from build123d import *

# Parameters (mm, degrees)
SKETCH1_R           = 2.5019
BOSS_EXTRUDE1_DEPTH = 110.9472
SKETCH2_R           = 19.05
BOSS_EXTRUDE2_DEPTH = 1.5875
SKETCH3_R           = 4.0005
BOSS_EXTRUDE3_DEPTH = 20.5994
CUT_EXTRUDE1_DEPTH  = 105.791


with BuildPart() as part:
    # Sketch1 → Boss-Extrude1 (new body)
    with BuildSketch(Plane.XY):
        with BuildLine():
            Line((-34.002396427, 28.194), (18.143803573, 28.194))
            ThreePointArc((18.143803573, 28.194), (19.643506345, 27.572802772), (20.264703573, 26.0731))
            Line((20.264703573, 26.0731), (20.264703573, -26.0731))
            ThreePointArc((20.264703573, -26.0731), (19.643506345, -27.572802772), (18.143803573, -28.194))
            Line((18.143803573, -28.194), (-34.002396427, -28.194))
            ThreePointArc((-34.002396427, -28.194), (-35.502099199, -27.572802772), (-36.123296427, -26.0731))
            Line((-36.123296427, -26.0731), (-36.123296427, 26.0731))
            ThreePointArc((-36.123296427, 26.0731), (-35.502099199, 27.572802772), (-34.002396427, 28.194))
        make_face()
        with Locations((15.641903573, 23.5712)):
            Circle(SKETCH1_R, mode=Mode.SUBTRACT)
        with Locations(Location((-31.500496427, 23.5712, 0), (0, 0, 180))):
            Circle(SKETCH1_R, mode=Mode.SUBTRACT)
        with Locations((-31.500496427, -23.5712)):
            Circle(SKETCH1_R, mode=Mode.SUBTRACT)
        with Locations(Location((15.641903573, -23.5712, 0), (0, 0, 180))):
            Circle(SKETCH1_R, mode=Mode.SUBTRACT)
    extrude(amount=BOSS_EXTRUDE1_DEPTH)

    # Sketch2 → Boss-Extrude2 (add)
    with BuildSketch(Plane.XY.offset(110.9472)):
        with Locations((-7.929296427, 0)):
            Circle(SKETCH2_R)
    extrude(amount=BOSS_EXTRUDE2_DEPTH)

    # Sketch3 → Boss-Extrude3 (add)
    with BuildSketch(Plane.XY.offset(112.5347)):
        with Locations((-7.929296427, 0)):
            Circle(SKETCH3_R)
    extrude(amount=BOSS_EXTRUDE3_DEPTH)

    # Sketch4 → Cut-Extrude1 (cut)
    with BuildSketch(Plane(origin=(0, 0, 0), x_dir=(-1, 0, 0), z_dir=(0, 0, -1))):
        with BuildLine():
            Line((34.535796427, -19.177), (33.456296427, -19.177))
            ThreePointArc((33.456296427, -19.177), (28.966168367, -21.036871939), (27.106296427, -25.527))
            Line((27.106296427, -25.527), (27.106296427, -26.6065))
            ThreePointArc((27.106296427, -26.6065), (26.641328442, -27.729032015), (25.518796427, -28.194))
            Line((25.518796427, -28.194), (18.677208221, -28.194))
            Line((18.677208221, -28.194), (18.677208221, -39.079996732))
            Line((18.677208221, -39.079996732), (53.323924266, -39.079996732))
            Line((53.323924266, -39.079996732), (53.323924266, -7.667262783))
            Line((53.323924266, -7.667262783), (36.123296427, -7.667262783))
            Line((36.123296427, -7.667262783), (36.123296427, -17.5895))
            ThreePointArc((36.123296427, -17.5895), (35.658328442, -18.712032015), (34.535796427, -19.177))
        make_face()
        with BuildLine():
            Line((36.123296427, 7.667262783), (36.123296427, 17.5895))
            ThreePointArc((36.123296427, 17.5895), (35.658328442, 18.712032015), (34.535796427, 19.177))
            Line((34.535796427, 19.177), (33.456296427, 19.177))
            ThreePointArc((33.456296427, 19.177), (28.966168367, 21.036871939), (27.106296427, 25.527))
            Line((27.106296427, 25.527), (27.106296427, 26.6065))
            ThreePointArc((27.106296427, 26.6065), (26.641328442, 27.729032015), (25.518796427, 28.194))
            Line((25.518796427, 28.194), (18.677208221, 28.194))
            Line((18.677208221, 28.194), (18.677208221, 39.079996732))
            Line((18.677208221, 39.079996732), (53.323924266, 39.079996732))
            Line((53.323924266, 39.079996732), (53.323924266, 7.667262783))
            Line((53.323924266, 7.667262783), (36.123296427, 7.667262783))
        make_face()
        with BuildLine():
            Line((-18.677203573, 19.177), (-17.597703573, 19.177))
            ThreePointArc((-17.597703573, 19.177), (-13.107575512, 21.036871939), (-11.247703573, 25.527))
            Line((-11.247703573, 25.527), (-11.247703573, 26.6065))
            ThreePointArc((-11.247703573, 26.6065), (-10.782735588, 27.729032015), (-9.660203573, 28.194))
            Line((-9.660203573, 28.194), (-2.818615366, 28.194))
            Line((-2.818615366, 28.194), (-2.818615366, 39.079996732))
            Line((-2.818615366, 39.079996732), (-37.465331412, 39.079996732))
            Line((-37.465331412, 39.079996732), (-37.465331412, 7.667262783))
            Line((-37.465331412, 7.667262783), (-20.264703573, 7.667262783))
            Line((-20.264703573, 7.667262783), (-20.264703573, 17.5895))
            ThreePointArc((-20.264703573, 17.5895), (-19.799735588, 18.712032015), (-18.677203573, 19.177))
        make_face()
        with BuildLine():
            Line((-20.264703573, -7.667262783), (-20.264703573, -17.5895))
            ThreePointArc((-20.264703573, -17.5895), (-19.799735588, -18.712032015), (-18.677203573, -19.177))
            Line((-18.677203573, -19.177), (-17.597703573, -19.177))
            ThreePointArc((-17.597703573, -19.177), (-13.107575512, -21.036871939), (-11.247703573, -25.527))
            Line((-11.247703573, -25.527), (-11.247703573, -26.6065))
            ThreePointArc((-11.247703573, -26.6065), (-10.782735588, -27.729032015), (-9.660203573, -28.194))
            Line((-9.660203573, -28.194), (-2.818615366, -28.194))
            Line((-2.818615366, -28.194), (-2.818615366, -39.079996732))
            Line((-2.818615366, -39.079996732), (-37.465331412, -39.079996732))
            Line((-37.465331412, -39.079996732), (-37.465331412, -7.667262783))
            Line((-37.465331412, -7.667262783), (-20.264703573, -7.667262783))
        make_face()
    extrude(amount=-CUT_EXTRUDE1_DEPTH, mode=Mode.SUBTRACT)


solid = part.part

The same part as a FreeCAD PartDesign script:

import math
import FreeCAD as App
import Part
import Sketcher
Q = App.Units.Quantity

doc = App.newDocument("Part")
body = doc.addObject("PartDesign::Body", "Body")

sketch1 = body.newObject("Sketcher::SketchObject", "Sketch")
sketch1.AttachmentSupport = (doc.getObject("XY_Plane"), [""])
sketch1.MapMode = "FlatFace"
sketch1.addGeometry([
    Part.LineSegment(App.Vector(18.1, 28.2, 0), App.Vector(-34, 28.2, 0)),
    Part.ArcOfCircle(Part.Circle(App.Vector(-34, 26.1, 0), App.Vector(0, 0, 1), 2.1), math.radians(90), math.radians(180)),
    Part.LineSegment(App.Vector(-36.1, 26.1, 0), App.Vector(-36.1, -26.1, 0)),
    Part.ArcOfCircle(Part.Circle(App.Vector(-34, -26.1, 0), App.Vector(0, 0, 1), 2.1), math.radians(-180), math.radians(-90)),
    Part.LineSegment(App.Vector(-34, -28.2, 0), App.Vector(18.1, -28.2, 0)),
    Part.ArcOfCircle(Part.Circle(App.Vector(18.1, -26.1, 0), App.Vector(0, 0, 1), 2.1), math.radians(-90), math.radians(0)),
    Part.LineSegment(App.Vector(20.3, -26.1, 0), App.Vector(20.3, 26.1, 0)),
    Part.ArcOfCircle(Part.Circle(App.Vector(18.1, 26.1, 0), App.Vector(0, 0, 1), 2.1), math.radians(0), math.radians(90)),
    Part.Circle(App.Vector(15.6, -23.6, 0), App.Vector(0, 0, 1), 2.5),
    Part.Circle(App.Vector(-31.5, -23.6, 0), App.Vector(0, 0, 1), 2.5),
    Part.Circle(App.Vector(15.6, 23.6, 0), App.Vector(0, 0, 1), 2.5),
    Part.Circle(App.Vector(-31.5, 23.6, 0), App.Vector(0, 0, 1), 2.5),
], False)
sketch1.addConstraint([
    Sketcher.Constraint("Tangent", 0, 2, 1, 1),
    Sketcher.Constraint("Tangent", 1, 2, 2, 1),
    Sketcher.Constraint("Tangent", 2, 2, 3, 1),
    Sketcher.Constraint("Tangent", 3, 2, 4, 1),
    Sketcher.Constraint("Tangent", 4, 2, 5, 1),
    Sketcher.Constraint("Tangent", 5, 2, 6, 1),
    Sketcher.Constraint("Tangent", 6, 2, 7, 1),
    Sketcher.Constraint("Tangent", 7, 2, 0, 1),
    Sketcher.Constraint("Horizontal", 0),
    Sketcher.Constraint("Vertical", 2),
    Sketcher.Constraint("Horizontal", 4),
    Sketcher.Constraint("Vertical", 6),
    Sketcher.Constraint("Equal", 1, 3),
    Sketcher.Constraint("Equal", 3, 5),
    Sketcher.Constraint("Equal", 5, 7),
    Sketcher.Constraint("Equal", 8, 9),
    Sketcher.Constraint("Equal", 9, 10),
    Sketcher.Constraint("Equal", 10, 11),
    Sketcher.Constraint("Symmetric", 8, 3, 10, 3, -1),
    Sketcher.Constraint("Symmetric", 9, 3, 11, 3, -1),
    Sketcher.Constraint("Horizontal", 8, 3, 9, 3),
    Sketcher.Constraint("Equal", 4, 2),
    Sketcher.Constraint("Diameter", 8, Q("0.197 in")),
    Sketcher.Constraint("Radius", 1, Q("0.0835 in")),
    Sketcher.Constraint("DistanceX", 0, 2, 0, 1, Q("2.053 in")),
    Sketcher.Constraint("DistanceY", -1, 1, 0, 2, Q("1.11 in")),
    Sketcher.Constraint("DistanceY", 8, 3, -1, 1, Q("0.928 in")),
    Sketcher.Constraint("DistanceX", 9, 3, 8, 3, Q("1.856 in")),
    Sketcher.Constraint("DistanceX", 1, 2, 11, 3, Q("0.182 in")),
    Sketcher.Constraint("DistanceX", 1, 3, -1, 1, 34.002396),
])
pad1 = body.newObject("PartDesign::Pad", "Pad")
pad1.Profile = sketch1
pad1.Length = Q("4.368 in")

sketch2 = body.newObject("Sketcher::SketchObject", "Sketch001")
sketch2.AttachmentSupport = (doc.getObject("XY_Plane"), [""])
sketch2.MapMode = "FlatFace"
sketch2.AttachmentOffset = App.Placement(App.Vector(0, 0, 4.368 * 25.4), App.Rotation())
sketch2.addGeometry(Part.Circle(App.Vector(-8, 0, 0), App.Vector(0, 0, 1), 19), False)
sketch2.addConstraint([
    Sketcher.Constraint("PointOnObject", 0, 3, -1),
    Sketcher.Constraint("Diameter", 0, Q("1.5 in")),
    Sketcher.Constraint("DistanceX", 0, 3, -1, 1, 7.929296),
])
pad2 = body.newObject("PartDesign::Pad", "Pad001")
pad2.Profile = sketch2
pad2.Length = Q("0.0625 in")

sketch3 = body.newObject("Sketcher::SketchObject", "Sketch002")
sketch3.AttachmentSupport = (doc.getObject("XY_Plane"), [""])
sketch3.MapMode = "FlatFace"
sketch3.AttachmentOffset = App.Placement(App.Vector(0, 0, 4.4305 * 25.4), App.Rotation())
sketch3.addGeometry(Part.Circle(App.Vector(-7.9, 0, 0), App.Vector(0, 0, 1), 4), False)
sketch3.addConstraint([
    Sketcher.Constraint("PointOnObject", 0, 3, -1),
    Sketcher.Constraint("Diameter", 0, Q("0.315 in")),
    Sketcher.Constraint("DistanceX", 0, 3, -1, 1, 7.929296),
])
pad3 = body.newObject("PartDesign::Pad", "Pad002")
pad3.Profile = sketch3
pad3.Length = Q("0.811 in")

sketch4 = body.newObject("Sketcher::SketchObject", "Sketch003")
sketch4.AttachmentSupport = (doc.getObject("XY_Plane"), [""])
sketch4.MapMode = "FlatFace"
sketch4.addGeometry([
    Part.LineSegment(App.Vector(-34.5, -19.2, 0), App.Vector(-33.5, -19.2, 0)),
    Part.ArcOfCircle(Part.Circle(App.Vector(-33.5, -25.5, 0), App.Vector(0, 0, 1), 6.3), math.radians(0), math.radians(90)),
    Part.LineSegment(App.Vector(-27.1, -25.5, 0), App.Vector(-27.1, -26.6, 0)),
    Part.ArcOfCircle(Part.Circle(App.Vector(-25.5, -26.6, 0), App.Vector(0, 0, 1), 1.6), math.radians(180), math.radians(270)),
    Part.LineSegment(App.Vector(-25.5, -28.2, 0), App.Vector(-18.7, -28.2, 0)),
    Part.LineSegment(App.Vector(-18.7, -28.2, 0), App.Vector(-18.7, -39.1, 0)),
    Part.LineSegment(App.Vector(-18.7, -39.1, 0), App.Vector(-53.3, -39.1, 0)),
    Part.LineSegment(App.Vector(-53.3, -39.1, 0), App.Vector(-53.3, -7.7, 0)),
    Part.LineSegment(App.Vector(-53.3, -7.7, 0), App.Vector(-36.1, -7.7, 0)),
    Part.LineSegment(App.Vector(-36.1, -7.7, 0), App.Vector(-36.1, -17.6, 0)),
    Part.ArcOfCircle(Part.Circle(App.Vector(-34.5, -17.6, 0), App.Vector(0, 0, 1), 1.6), math.radians(180), math.radians(270)),
    Part.LineSegment(App.Vector(-36.1, 17.6, 0), App.Vector(-36.1, 7.7, 0)),
    Part.LineSegment(App.Vector(-36.1, 7.7, 0), App.Vector(-53.3, 7.7, 0)),
    Part.LineSegment(App.Vector(-53.3, 7.7, 0), App.Vector(-53.3, 39.1, 0)),
    Part.LineSegment(App.Vector(-53.3, 39.1, 0), App.Vector(-18.7, 39.1, 0)),
    Part.LineSegment(App.Vector(-18.7, 39.1, 0), App.Vector(-18.7, 28.2, 0)),
    Part.LineSegment(App.Vector(-18.7, 28.2, 0), App.Vector(-25.5, 28.2, 0)),
    Part.ArcOfCircle(Part.Circle(App.Vector(-25.5, 26.6, 0), App.Vector(0, 0, 1), 1.6), math.radians(90), math.radians(180)),
    Part.LineSegment(App.Vector(-27.1, 26.6, 0), App.Vector(-27.1, 25.5, 0)),
    Part.ArcOfCircle(Part.Circle(App.Vector(-33.5, 25.5, 0), App.Vector(0, 0, 1), 6.3), math.radians(-90), math.radians(0)),
    Part.LineSegment(App.Vector(-33.5, 19.2, 0), App.Vector(-34.5, 19.2, 0)),
    Part.ArcOfCircle(Part.Circle(App.Vector(-34.5, 17.6, 0), App.Vector(0, 0, 1), 1.6), math.radians(90), math.radians(180)),
    Part.LineSegment(App.Vector(18.7, 19.2, 0), App.Vector(17.6, 19.2, 0)),
    Part.ArcOfCircle(Part.Circle(App.Vector(17.6, 25.5, 0), App.Vector(0, 0, 1), 6.3), math.radians(180), math.radians(270)),
    Part.LineSegment(App.Vector(11.2, 25.5, 0), App.Vector(11.2, 26.6, 0)),
    Part.ArcOfCircle(Part.Circle(App.Vector(9.7, 26.6, 0), App.Vector(0, 0, 1), 1.6), math.radians(0), math.radians(90)),
    Part.LineSegment(App.Vector(9.7, 28.2, 0), App.Vector(2.8, 28.2, 0)),
    Part.LineSegment(App.Vector(2.8, 28.2, 0), App.Vector(2.8, 39.1, 0)),
    Part.LineSegment(App.Vector(2.8, 39.1, 0), App.Vector(37.5, 39.1, 0)),
    Part.LineSegment(App.Vector(37.5, 39.1, 0), App.Vector(37.5, 7.7, 0)),
    Part.LineSegment(App.Vector(37.5, 7.7, 0), App.Vector(20.3, 7.7, 0)),
    Part.LineSegment(App.Vector(20.3, 7.7, 0), App.Vector(20.3, 17.6, 0)),
    Part.ArcOfCircle(Part.Circle(App.Vector(18.7, 17.6, 0), App.Vector(0, 0, 1), 1.6), math.radians(0), math.radians(90)),
    Part.LineSegment(App.Vector(20.3, -17.6, 0), App.Vector(20.3, -7.7, 0)),
    Part.LineSegment(App.Vector(20.3, -7.7, 0), App.Vector(37.5, -7.7, 0)),
    Part.LineSegment(App.Vector(37.5, -7.7, 0), App.Vector(37.5, -39.1, 0)),
    Part.LineSegment(App.Vector(37.5, -39.1, 0), App.Vector(2.8, -39.1, 0)),
    Part.LineSegment(App.Vector(2.8, -39.1, 0), App.Vector(2.8, -28.2, 0)),
    Part.LineSegment(App.Vector(2.8, -28.2, 0), App.Vector(9.7, -28.2, 0)),
    Part.ArcOfCircle(Part.Circle(App.Vector(9.7, -26.6, 0), App.Vector(0, 0, 1), 1.6), math.radians(-90), math.radians(0)),
    Part.LineSegment(App.Vector(11.2, -26.6, 0), App.Vector(11.2, -25.5, 0)),
    Part.ArcOfCircle(Part.Circle(App.Vector(17.6, -25.5, 0), App.Vector(0, 0, 1), 6.3), math.radians(90), math.radians(180)),
    Part.LineSegment(App.Vector(17.6, -19.2, 0), App.Vector(18.7, -19.2, 0)),
    Part.ArcOfCircle(Part.Circle(App.Vector(18.7, -17.6, 0), App.Vector(0, 0, 1), 1.6), math.radians(-90), math.radians(0)),
], False)
sketch4.addConstraint([
    Sketcher.Constraint("Tangent", 0, 2, 1, 2),
    Sketcher.Constraint("Tangent", 1, 1, 2, 1),
    Sketcher.Constraint("Tangent", 2, 2, 3, 1),
    Sketcher.Constraint("Tangent", 3, 2, 4, 1),
    Sketcher.Constraint("Coincident", 4, 2, 5, 1),
    Sketcher.Constraint("Coincident", 5, 2, 6, 1),
    Sketcher.Constraint("Coincident", 6, 2, 7, 1),
    Sketcher.Constraint("Coincident", 7, 2, 8, 1),
    Sketcher.Constraint("Coincident", 8, 2, 9, 1),
    Sketcher.Constraint("Tangent", 9, 2, 10, 1),
    Sketcher.Constraint("Tangent", 10, 2, 0, 1),
    Sketcher.Constraint("Coincident", 11, 2, 12, 1),
    Sketcher.Constraint("Coincident", 12, 2, 13, 1),
    Sketcher.Constraint("Coincident", 13, 2, 14, 1),
    Sketcher.Constraint("Coincident", 14, 2, 15, 1),
    Sketcher.Constraint("Coincident", 15, 2, 16, 1),
    Sketcher.Constraint("Tangent", 16, 2, 17, 1),
    Sketcher.Constraint("Tangent", 17, 2, 18, 1),
    Sketcher.Constraint("Tangent", 18, 2, 19, 2),
    Sketcher.Constraint("Tangent", 19, 1, 20, 1),
    Sketcher.Constraint("Tangent", 20, 2, 21, 1),
    Sketcher.Constraint("Tangent", 21, 2, 11, 1),
    Sketcher.Constraint("Tangent", 22, 2, 23, 2),
    Sketcher.Constraint("Tangent", 23, 1, 24, 1),
    Sketcher.Constraint("Tangent", 24, 2, 25, 1),
    Sketcher.Constraint("Tangent", 25, 2, 26, 1),
    Sketcher.Constraint("Coincident", 26, 2, 27, 1),
    Sketcher.Constraint("Coincident", 27, 2, 28, 1),
    Sketcher.Constraint("Coincident", 28, 2, 29, 1),
    Sketcher.Constraint("Coincident", 29, 2, 30, 1),
    Sketcher.Constraint("Coincident", 30, 2, 31, 1),
    Sketcher.Constraint("Tangent", 31, 2, 32, 1),
    Sketcher.Constraint("Tangent", 32, 2, 22, 1),
    Sketcher.Constraint("Coincident", 33, 2, 34, 1),
    Sketcher.Constraint("Coincident", 34, 2, 35, 1),
    Sketcher.Constraint("Coincident", 35, 2, 36, 1),
    Sketcher.Constraint("Coincident", 36, 2, 37, 1),
    Sketcher.Constraint("Coincident", 37, 2, 38, 1),
    Sketcher.Constraint("Tangent", 38, 2, 39, 1),
    Sketcher.Constraint("Tangent", 39, 2, 40, 1),
    Sketcher.Constraint("Tangent", 40, 2, 41, 2),
    Sketcher.Constraint("Tangent", 41, 1, 42, 1),
    Sketcher.Constraint("Tangent", 42, 2, 43, 1),
    Sketcher.Constraint("Tangent", 43, 2, 33, 1),
    Sketcher.Constraint("Horizontal", 0),
    Sketcher.Constraint("Vertical", 2),
    Sketcher.Constraint("Horizontal", 4),
    Sketcher.Constraint("Vertical", 5),
    Sketcher.Constraint("Horizontal", 6),
    Sketcher.Constraint("Vertical", 7),
    Sketcher.Constraint("Horizontal", 8),
    Sketcher.Constraint("Vertical", 9),
    Sketcher.Constraint("Vertical", 11),
    Sketcher.Constraint("Horizontal", 12),
    Sketcher.Constraint("Vertical", 13),
    Sketcher.Constraint("Horizontal", 14),
    Sketcher.Constraint("Vertical", 15),
    Sketcher.Constraint("Horizontal", 16),
    Sketcher.Constraint("Vertical", 18),
    Sketcher.Constraint("Horizontal", 20),
    Sketcher.Constraint("Horizontal", 22),
    Sketcher.Constraint("Vertical", 24),
    Sketcher.Constraint("Horizontal", 26),
    Sketcher.Constraint("Vertical", 27),
    Sketcher.Constraint("Horizontal", 28),
    Sketcher.Constraint("Vertical", 29),
    Sketcher.Constraint("Horizontal", 30),
    Sketcher.Constraint("Vertical", 31),
    Sketcher.Constraint("Vertical", 33),
    Sketcher.Constraint("Horizontal", 34),
    Sketcher.Constraint("Vertical", 35),
    Sketcher.Constraint("Horizontal", 36),
    Sketcher.Constraint("Vertical", 37),
    Sketcher.Constraint("Horizontal", 38),
    Sketcher.Constraint("Vertical", 40),
    Sketcher.Constraint("Horizontal", 42),
    Sketcher.Constraint("Equal", 3, 10),
    Sketcher.Constraint("Equal", 10, 17),
    Sketcher.Constraint("Equal", 1, 19),
    Sketcher.Constraint("Equal", 17, 21),
    Sketcher.Constraint("Equal", 19, 23),
    Sketcher.Constraint("Equal", 21, 25),
    Sketcher.Constraint("Equal", 25, 32),
    Sketcher.Constraint("Equal", 32, 39),
    Sketcher.Constraint("Equal", 23, 41),
    Sketcher.Constraint("Equal", 39, 43),
    Sketcher.Constraint("Symmetric", 3, 3, 17, 3, -1),
    Sketcher.Constraint("Symmetric", 10, 3, 21, 3, -1),
    Sketcher.Constraint("Symmetric", 25, 3, 39, 3, -1),
    Sketcher.Constraint("Symmetric", 32, 3, 43, 3, -1),
    Sketcher.Constraint("Symmetric", 7, 2, 12, 2, -1),
    Sketcher.Constraint("Symmetric", 5, 2, 14, 2, -1),
    Sketcher.Constraint("Symmetric", 29, 2, 34, 2, -1),
    Sketcher.Constraint("Symmetric", 27, 2, 36, 2, -1),
    Sketcher.Constraint("Horizontal", 19, 3, 23, 3),
    Sketcher.Constraint("Horizontal", 17, 3, 25, 3),
    Sketcher.Constraint("Horizontal", 14, 2, 27, 2),
    Sketcher.Constraint("Horizontal", 12, 2, 29, 2),
    Sketcher.Constraint("Equal", 20, 22),
    Sketcher.Constraint("Equal", 16, 26),
    Sketcher.Constraint("Equal", 14, 28),
    Sketcher.Constraint("Equal", 42, 2),
    Sketcher.Constraint("Radius", 1, Q("0.25 in")),
    Sketcher.Constraint("Radius", 3, Q("0.0625 in")),
    Sketcher.Constraint("DistanceY", 3, 2, -1, 1, Q("1.11 in")),
    Sketcher.Constraint("DistanceY", 10, 3, 17, 3, Q("1.74 in")),
    Sketcher.Constraint("DistanceX", 19, 3, 23, 3, Q("2.01 in")),
    Sketcher.Constraint("DistanceX", 4, 1, 4, 2, 6.841588),
    Sketcher.Constraint("DistanceX", 6, 2, 6, 1, 34.646716),
    Sketcher.Constraint("DistanceY", 5, 2, 5, 1, 10.885997),
    Sketcher.Constraint("DistanceY", 7, 1, 7, 2, 31.412734),
    Sketcher.Constraint("DistanceX", 4, 2, -1, 1, 18.677208),
])
pocket1 = body.newObject("PartDesign::Pocket", "Pocket")
pocket1.Profile = sketch4
pocket1.Length = Q("4.165 in")
pocket1.Reversed = True

doc.recompute()
